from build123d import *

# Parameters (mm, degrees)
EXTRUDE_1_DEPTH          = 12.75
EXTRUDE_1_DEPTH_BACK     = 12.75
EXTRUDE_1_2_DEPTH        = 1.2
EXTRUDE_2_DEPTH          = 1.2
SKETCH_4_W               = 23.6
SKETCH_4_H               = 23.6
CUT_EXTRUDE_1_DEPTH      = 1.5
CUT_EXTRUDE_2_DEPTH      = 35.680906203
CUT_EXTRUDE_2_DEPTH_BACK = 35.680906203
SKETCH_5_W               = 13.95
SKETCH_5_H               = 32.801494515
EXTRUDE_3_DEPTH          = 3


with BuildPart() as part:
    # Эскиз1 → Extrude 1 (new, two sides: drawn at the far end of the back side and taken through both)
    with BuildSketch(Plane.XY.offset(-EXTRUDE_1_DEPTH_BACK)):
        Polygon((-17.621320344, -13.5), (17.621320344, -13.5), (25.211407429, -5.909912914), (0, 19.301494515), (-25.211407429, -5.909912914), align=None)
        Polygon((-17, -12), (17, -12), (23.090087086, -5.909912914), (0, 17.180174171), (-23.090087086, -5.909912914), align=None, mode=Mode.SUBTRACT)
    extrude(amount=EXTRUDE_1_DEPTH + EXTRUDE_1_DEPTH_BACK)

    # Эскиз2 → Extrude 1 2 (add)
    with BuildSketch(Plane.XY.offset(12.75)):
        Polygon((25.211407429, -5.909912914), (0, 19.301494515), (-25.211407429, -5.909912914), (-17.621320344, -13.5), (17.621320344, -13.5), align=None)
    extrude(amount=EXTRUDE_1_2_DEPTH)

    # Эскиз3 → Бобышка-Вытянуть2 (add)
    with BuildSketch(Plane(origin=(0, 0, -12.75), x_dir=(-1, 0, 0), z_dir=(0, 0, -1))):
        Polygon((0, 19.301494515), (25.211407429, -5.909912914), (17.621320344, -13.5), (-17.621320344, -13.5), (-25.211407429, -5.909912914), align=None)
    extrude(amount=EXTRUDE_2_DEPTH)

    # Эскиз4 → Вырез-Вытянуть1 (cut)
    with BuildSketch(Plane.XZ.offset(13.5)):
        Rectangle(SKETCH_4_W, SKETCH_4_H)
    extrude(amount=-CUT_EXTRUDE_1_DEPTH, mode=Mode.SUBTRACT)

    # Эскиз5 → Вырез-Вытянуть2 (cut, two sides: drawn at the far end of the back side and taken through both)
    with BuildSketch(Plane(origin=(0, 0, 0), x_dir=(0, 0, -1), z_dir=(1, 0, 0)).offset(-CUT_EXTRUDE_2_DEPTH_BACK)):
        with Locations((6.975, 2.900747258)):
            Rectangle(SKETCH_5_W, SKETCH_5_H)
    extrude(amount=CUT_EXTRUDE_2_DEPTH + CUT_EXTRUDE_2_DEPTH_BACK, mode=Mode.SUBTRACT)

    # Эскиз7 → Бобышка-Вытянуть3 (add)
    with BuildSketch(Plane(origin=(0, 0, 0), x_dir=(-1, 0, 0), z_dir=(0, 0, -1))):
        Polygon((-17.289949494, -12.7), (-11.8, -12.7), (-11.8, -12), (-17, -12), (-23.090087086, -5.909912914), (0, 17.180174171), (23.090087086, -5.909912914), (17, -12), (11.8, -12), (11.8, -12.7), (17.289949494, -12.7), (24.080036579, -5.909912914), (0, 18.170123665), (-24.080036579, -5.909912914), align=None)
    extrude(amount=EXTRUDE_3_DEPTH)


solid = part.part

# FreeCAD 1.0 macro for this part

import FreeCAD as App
import Part
import Sketcher

V = App.Vector

doc = App.newDocument("Part")
body = doc.addObject("PartDesign::Body", "Body")

# Sketch on XY plane
sketch1 = body.newObject("Sketcher::SketchObject", "Sketch")
sketch1.AttachmentSupport = (doc.getObject("XY_Plane"), [""])
sketch1.MapMode = "FlatFace"
sketch1.addGeometry([
    Part.LineSegment(V(-18, -14, 0), V(18, -14, 0)),  # 0
    Part.LineSegment(V(18, -14, 0), V(25, -6, 0)),  # 1
    Part.LineSegment(V(25, -6, 0), V(0, 19, 0)),  # 2
    Part.LineSegment(V(0, 19, 0), V(-25, -6, 0)),  # 3
    Part.LineSegment(V(-25, -6, 0), V(-18, -14, 0)),  # 4
    Part.LineSegment(V(17, -12, 0), V(-17, -12, 0)),  # 5
    Part.LineSegment(V(-17, -12, 0), V(-23, -6, 0)),  # 6
    Part.LineSegment(V(-23, -6, 0), V(0, 17, 0)),  # 7
    Part.LineSegment(V(0, 17, 0), V(23, -6, 0)),  # 8
    Part.LineSegment(V(23, -6, 0), V(17, -12, 0)),  # 9
], False)
sketch1.addConstraint([
    Sketcher.Constraint("Coincident", 0, 2, 1, 1),
    Sketcher.Constraint("Coincident", 1, 2, 2, 1),
    Sketcher.Constraint("Coincident", 2, 2, 3, 1),
    Sketcher.Constraint("Coincident", 3, 2, 4, 1),
    Sketcher.Constraint("Coincident", 4, 2, 0, 1),
    Sketcher.Constraint("Coincident", 5, 2, 6, 1),
    Sketcher.Constraint("Coincident", 6, 2, 7, 1),
    Sketcher.Constraint("Coincident", 7, 2, 8, 1),
    Sketcher.Constraint("Coincident", 8, 2, 9, 1),
    Sketcher.Constraint("Coincident", 9, 2, 5, 1),
    Sketcher.Constraint("Horizontal", 0),
    Sketcher.Constraint("Horizontal", 5),
    Sketcher.Constraint("Symmetric", 1, 2, 3, 2, -2),
    Sketcher.Constraint("Symmetric", 6, 2, 8, 2, -2),
    Sketcher.Constraint("PointOnObject", 2, 2, -2),
    Sketcher.Constraint("PointOnObject", 7, 2, -2),
    Sketcher.Constraint("Perpendicular", 1, 2),
    Sketcher.Constraint("Perpendicular", 2, 3),
    Sketcher.Constraint("Perpendicular", 3, 4),
    Sketcher.Constraint("Parallel", 4, 6),
    Sketcher.Constraint("Perpendicular", 6, 7),
    Sketcher.Constraint("Perpendicular", 8, 9),
    Sketcher.Constraint("Horizontal", 3, 2, 6, 2),
    Sketcher.Constraint("DistanceX", 5, 2, 5, 1, 34.0),
    Sketcher.Constraint("DistanceY", 5, 2, -1, 1, 12.0),
    Sketcher.Constraint("DistanceY", 0, 2, -1, 1, 13.5),
    Sketcher.Constraint("DistanceX", 0, 1, 0, 2, 35.242641),
    Sketcher.Constraint("Distance", 1, 10.734004),
])
pad1 = body.newObject("PartDesign::Pad", "Pad")
pad1.Profile = sketch1
pad1.Type = "TwoLengths"
pad1.Length = 12.75
pad1.Length2 = 12.75

# Sketch on XY plane
sketch2 = body.newObject("Sketcher::SketchObject", "Sketch001")
sketch2.AttachmentSupport = (doc.getObject("XY_Plane"), [""])
sketch2.MapMode = "FlatFace"
sketch2.AttachmentOffset = App.Placement(V(0, 0, 12.75), App.Rotation())
sketch2.addGeometry([
    Part.LineSegment(V(25, -6, 0), V(0, 19, 0)),  # 0
    Part.LineSegment(V(0, 19, 0), V(-25, -6, 0)),  # 1
    Part.LineSegment(V(-25, -6, 0), V(-18, -14, 0)),  # 2
    Part.LineSegment(V(-18, -14, 0), V(18, -14, 0)),  # 3
    Part.LineSegment(V(18, -14, 0), V(25, -6, 0)),  # 4
], False)
sketch2.addConstraint([
    Sketcher.Constraint("Coincident", 0, 2, 1, 1),
    Sketcher.Constraint("Coincident", 1, 2, 2, 1),
    Sketcher.Constraint("Coincident", 2, 2, 3, 1),
    Sketcher.Constraint("Coincident", 3, 2, 4, 1),
    Sketcher.Constraint("Coincident", 4, 2, 0, 1),
    Sketcher.Constraint("Horizontal", 3),
    Sketcher.Constraint("Symmetric", 1, 2, 4, 2, -2),
    Sketcher.Constraint("PointOnObject", 0, 2, -2),
    Sketcher.Constraint("Perpendicular", 0, 1),
    Sketcher.Constraint("Perpendicular", 1, 2),
    Sketcher.Constraint("Perpendicular", 2, 4),
    Sketcher.Constraint("DistanceY", 2, 2, -1, 1, 13.5),
    Sketcher.Constraint("DistanceX", 3, 1, 3, 2, 35.242641),
    Sketcher.Constraint("Distance", 0, 35.654314),
])
pad2 = body.newObject("PartDesign::Pad", "Pad001")
pad2.Profile = sketch2
pad2.Length = 1.2

# Sketch on XY plane
sketch3 = body.newObject("Sketcher::SketchObject", "Sketch002")
sketch3.AttachmentSupport = (doc.getObject("XY_Plane"), [""])
sketch3.MapMode = "FlatFace"
sketch3.AttachmentOffset = App.Placement(V(0, 0, -12.75), App.Rotation())
sketch3.addGeometry([
    Part.LineSegment(V(-25, -6, 0), V(0, 19, 0)),  # 0
    Part.LineSegment(V(0, 19, 0), V(25, -6, 0)),  # 1
    Part.LineSegment(V(25, -6, 0), V(18, -14, 0)),  # 2
    Part.LineSegment(V(18, -14, 0), V(-18, -14, 0)),  # 3
    Part.LineSegment(V(-18, -14, 0), V(-25, -6, 0)),  # 4
], False)
sketch3.addConstraint([
    Sketcher.Constraint("Coincident", 0, 2, 1, 1),
    Sketcher.Constraint("Coincident", 1, 2, 2, 1),
    Sketcher.Constraint("Coincident", 2, 2, 3, 1),
    Sketcher.Constraint("Coincident", 3, 2, 4, 1),
    Sketcher.Constraint("Coincident", 4, 2, 0, 1),
    Sketcher.Constraint("Horizontal", 3),
    Sketcher.Constraint("Symmetric", 1, 2, 4, 2, -2),
    Sketcher.Constraint("PointOnObject", 0, 2, -2),
    Sketcher.Constraint("Perpendicular", 0, 1),
    Sketcher.Constraint("Perpendicular", 1, 2),
    Sketcher.Constraint("Perpendicular", 2, 4),
    Sketcher.Constraint("DistanceY", 2, 2, -1, 1, 13.5),
    Sketcher.Constraint("DistanceX", 3, 2, 3, 1, 35.242641),
    Sketcher.Constraint("Distance", 0, 35.654314),
])
pad3 = body.newObject("PartDesign::Pad", "Pad002")
pad3.Profile = sketch3
pad3.Length = 1.2
pad3.Reversed = True

# Sketch on XZ plane
sketch4 = body.newObject("Sketcher::SketchObject", "Sketch003")
sketch4.AttachmentSupport = (doc.getObject("XZ_Plane"), [""])
sketch4.MapMode = "FlatFace"
sketch4.AttachmentOffset = App.Placement(V(0, 0, 13.5), App.Rotation())
sketch4.addGeometry([
    Part.LineSegment(V(-12, 12, 0), V(-12, -12, 0)),
    Part.LineSegment(V(-12, -12, 0), V(12, -12, 0)),
    Part.LineSegment(V(12, -12, 0), V(12, 12, 0)),
    Part.LineSegment(V(12, 12, 0), V(-12, 12, 0)),
], False)
sketch4.addConstraint([
    Sketcher.Constraint("Coincident", 0, 2, 1, 1),
    Sketcher.Constraint("Coincident", 1, 2, 2, 1),
    Sketcher.Constraint("Coincident", 2, 2, 3, 1),
    Sketcher.Constraint("Coincident", 3, 2, 0, 1),
    Sketcher.Constraint("Vertical", 0),
    Sketcher.Constraint("Horizontal", 1),
    Sketcher.Constraint("Vertical", 2),
    Sketcher.Constraint("Horizontal", 3),
    Sketcher.Constraint("Symmetric", 0, 2, 2, 2, -1, 1),
    Sketcher.Constraint("Equal", 3, 0),
    Sketcher.Constraint("DistanceX", 1, 1, 1, 2, 23.6),
])
pocket1 = body.newObject("PartDesign::Pocket", "Pocket")
pocket1.Profile = sketch4
pocket1.Length = 1.5

# Sketch on YZ plane
sketch5 = body.newObject("Sketcher::SketchObject", "Sketch004")
sketch5.AttachmentSupport = (doc.getObject("YZ_Plane"), [""])
sketch5.MapMode = "FlatFace"
sketch5.addGeometry([
    Part.LineSegment(V(19, 0, 0), V(-14, 0, 0)),
    Part.LineSegment(V(-14, 0, 0), V(-14, -14, 0)),
    Part.LineSegment(V(-14, -14, 0), V(19, -14, 0)),
    Part.LineSegment(V(19, -14, 0), V(19, 0, 0)),
], False)
sketch5.addConstraint([
    Sketcher.Constraint("Coincident", 0, 2, 1, 1),
    Sketcher.Constraint("Coincident", 1, 2, 2, 1),
    Sketcher.Constraint("Coincident", 2, 2, 3, 1),
    Sketcher.Constraint("Coincident", 3, 2, 0, 1),
    Sketcher.Constraint("Horizontal", 0),
    Sketcher.Constraint("Vertical", 1),
    Sketcher.Constraint("Horizontal", 2),
    Sketcher.Constraint("Vertical", 3),
    Sketcher.Constraint("PointOnObject", 0, 2, -1),
    Sketcher.Constraint("DistanceY", 1, 2, 1, 1, 13.95),
    Sketcher.Constraint("DistanceX", 0, 2, -1, 1, 13.5),
    Sketcher.Constraint("DistanceX", 0, 2, 0, 1, 32.801495),
])
pocket2 = body.newObject("PartDesign::Pocket", "Pocket001")
pocket2.Profile = sketch5
pocket2.Type = "ThroughAll"
pocket2.Midplane = True

# Sketch on XY plane
sketch6 = body.newObject("Sketcher::SketchObject", "Sketch005")
sketch6.AttachmentSupport = (doc.getObject("XY_Plane"), [""])
sketch6.MapMode = "FlatFace"
sketch6.addGeometry([
    Part.LineSegment(V(17.3, -12.7, 0), V(11.8, -12.7, 0)),  # 0
    Part.LineSegment(V(11.8, -12.7, 0), V(11.8, -12, 0)),  # 1
    Part.LineSegment(V(11.8, -12, 0), V(17, -12, 0)),  # 2
    Part.LineSegment(V(17, -12, 0), V(23.1, -5.9, 0)),  # 3
    Part.LineSegment(V(23.1, -5.9, 0), V(0, 17.2, 0)),  # 4
    Part.LineSegment(V(0, 17.2, 0), V(-23.1, -5.9, 0)),  # 5
    Part.LineSegment(V(-23.1, -5.9, 0), V(-17, -12, 0)),  # 6
    Part.LineSegment(V(-17, -12, 0), V(-11.8, -12, 0)),  # 7
    Part.LineSegment(V(-11.8, -12, 0), V(-11.8, -12.7, 0)),  # 8
    Part.LineSegment(V(-11.8, -12.7, 0), V(-17.3, -12.7, 0)),  # 9
    Part.LineSegment(V(-17.3, -12.7, 0), V(-24.1, -5.9, 0)),  # 10
    Part.LineSegment(V(-24.1, -5.9, 0), V(0, 18.2, 0)),  # 11
    Part.LineSegment(V(0, 18.2, 0), V(24.1, -5.9, 0)),  # 12
    Part.LineSegment(V(24.1, -5.9, 0), V(17.3, -12.7, 0)),  # 13
], False)
sketch6.addConstraint([
    Sketcher.Constraint("Coincident", 0, 2, 1, 1),
    Sketcher.Constraint("Coincident", 1, 2, 2, 1),
    Sketcher.Constraint("Coincident", 2, 2, 3, 1),
    Sketcher.Constraint("Coincident", 3, 2, 4, 1),
    Sketcher.Constraint("Coincident", 4, 2, 5, 1),
    Sketcher.Constraint("Coincident", 5, 2, 6, 1),
    Sketcher.Constraint("Coincident", 6, 2, 7, 1),
    Sketcher.Constraint("Coincident", 7, 2, 8, 1),
    Sketcher.Constraint("Coincident", 8, 2, 9, 1),
    Sketcher.Constraint("Coincident", 9, 2, 10, 1),
    Sketcher.Constraint("Coincident", 10, 2, 11, 1),
    Sketcher.Constraint("Coincident", 11, 2, 12, 1),
    Sketcher.Constraint("Coincident", 12, 2, 13, 1),
    Sketcher.Constraint("Coincident", 13, 2, 0, 1),
    Sketcher.Constraint("Horizontal", 0),
    Sketcher.Constraint("Vertical", 1),
    Sketcher.Constraint("Horizontal", 2),
    Sketcher.Constraint("Horizontal", 7),
    Sketcher.Constraint("Vertical", 8),
    Sketcher.Constraint("Horizontal", 9),
    Sketcher.Constraint("Symmetric", 3, 2, 5, 2, -2),
    Sketcher.Constraint("Symmetric", 2, 2, 6, 2, -2),
    Sketcher.Constraint("Symmetric", 0, 2, 8, 2, -2),
    Sketcher.Constraint("Symmetric", 10, 2, 12, 2, -2),
    Sketcher.Constraint("PointOnObject", 4, 2, -2),
    Sketcher.Constraint("PointOnObject", 11, 2, -2),
    Sketcher.Constraint("Perpendicular", 3, 4),
    Sketcher.Constraint("Perpendicular", 4, 5),
    Sketcher.Constraint("Parallel", 6, 10),
    Sketcher.Constraint("Perpendicular", 10, 11),
    Sketcher.Constraint("Perpendicular", 12, 13),
    Sketcher.Constraint("Horizontal", 5, 2, 10, 2),
    Sketcher.Constraint("DistanceX", 2, 1, 2, 2, 5.2),
    Sketcher.Constraint("DistanceY", 1, 1, 1, 2, 0.7),
    Sketcher.Constraint("DistanceY", 1, 2, -1, 1, 12.0),
    Sketcher.Constraint("DistanceX", -1, 1, 2, 2, 17.0),
    Sketcher.Constraint("DistanceX", 0, 2, 0, 1, 5.489949),
    Sketcher.Constraint("Distance", 3, 8.612684),
])
pad4 = body.newObject("PartDesign::Pad", "Pad003")
pad4.Profile = sketch6
pad4.Length = 3
pad4.Reversed = True

doc.recompute()
